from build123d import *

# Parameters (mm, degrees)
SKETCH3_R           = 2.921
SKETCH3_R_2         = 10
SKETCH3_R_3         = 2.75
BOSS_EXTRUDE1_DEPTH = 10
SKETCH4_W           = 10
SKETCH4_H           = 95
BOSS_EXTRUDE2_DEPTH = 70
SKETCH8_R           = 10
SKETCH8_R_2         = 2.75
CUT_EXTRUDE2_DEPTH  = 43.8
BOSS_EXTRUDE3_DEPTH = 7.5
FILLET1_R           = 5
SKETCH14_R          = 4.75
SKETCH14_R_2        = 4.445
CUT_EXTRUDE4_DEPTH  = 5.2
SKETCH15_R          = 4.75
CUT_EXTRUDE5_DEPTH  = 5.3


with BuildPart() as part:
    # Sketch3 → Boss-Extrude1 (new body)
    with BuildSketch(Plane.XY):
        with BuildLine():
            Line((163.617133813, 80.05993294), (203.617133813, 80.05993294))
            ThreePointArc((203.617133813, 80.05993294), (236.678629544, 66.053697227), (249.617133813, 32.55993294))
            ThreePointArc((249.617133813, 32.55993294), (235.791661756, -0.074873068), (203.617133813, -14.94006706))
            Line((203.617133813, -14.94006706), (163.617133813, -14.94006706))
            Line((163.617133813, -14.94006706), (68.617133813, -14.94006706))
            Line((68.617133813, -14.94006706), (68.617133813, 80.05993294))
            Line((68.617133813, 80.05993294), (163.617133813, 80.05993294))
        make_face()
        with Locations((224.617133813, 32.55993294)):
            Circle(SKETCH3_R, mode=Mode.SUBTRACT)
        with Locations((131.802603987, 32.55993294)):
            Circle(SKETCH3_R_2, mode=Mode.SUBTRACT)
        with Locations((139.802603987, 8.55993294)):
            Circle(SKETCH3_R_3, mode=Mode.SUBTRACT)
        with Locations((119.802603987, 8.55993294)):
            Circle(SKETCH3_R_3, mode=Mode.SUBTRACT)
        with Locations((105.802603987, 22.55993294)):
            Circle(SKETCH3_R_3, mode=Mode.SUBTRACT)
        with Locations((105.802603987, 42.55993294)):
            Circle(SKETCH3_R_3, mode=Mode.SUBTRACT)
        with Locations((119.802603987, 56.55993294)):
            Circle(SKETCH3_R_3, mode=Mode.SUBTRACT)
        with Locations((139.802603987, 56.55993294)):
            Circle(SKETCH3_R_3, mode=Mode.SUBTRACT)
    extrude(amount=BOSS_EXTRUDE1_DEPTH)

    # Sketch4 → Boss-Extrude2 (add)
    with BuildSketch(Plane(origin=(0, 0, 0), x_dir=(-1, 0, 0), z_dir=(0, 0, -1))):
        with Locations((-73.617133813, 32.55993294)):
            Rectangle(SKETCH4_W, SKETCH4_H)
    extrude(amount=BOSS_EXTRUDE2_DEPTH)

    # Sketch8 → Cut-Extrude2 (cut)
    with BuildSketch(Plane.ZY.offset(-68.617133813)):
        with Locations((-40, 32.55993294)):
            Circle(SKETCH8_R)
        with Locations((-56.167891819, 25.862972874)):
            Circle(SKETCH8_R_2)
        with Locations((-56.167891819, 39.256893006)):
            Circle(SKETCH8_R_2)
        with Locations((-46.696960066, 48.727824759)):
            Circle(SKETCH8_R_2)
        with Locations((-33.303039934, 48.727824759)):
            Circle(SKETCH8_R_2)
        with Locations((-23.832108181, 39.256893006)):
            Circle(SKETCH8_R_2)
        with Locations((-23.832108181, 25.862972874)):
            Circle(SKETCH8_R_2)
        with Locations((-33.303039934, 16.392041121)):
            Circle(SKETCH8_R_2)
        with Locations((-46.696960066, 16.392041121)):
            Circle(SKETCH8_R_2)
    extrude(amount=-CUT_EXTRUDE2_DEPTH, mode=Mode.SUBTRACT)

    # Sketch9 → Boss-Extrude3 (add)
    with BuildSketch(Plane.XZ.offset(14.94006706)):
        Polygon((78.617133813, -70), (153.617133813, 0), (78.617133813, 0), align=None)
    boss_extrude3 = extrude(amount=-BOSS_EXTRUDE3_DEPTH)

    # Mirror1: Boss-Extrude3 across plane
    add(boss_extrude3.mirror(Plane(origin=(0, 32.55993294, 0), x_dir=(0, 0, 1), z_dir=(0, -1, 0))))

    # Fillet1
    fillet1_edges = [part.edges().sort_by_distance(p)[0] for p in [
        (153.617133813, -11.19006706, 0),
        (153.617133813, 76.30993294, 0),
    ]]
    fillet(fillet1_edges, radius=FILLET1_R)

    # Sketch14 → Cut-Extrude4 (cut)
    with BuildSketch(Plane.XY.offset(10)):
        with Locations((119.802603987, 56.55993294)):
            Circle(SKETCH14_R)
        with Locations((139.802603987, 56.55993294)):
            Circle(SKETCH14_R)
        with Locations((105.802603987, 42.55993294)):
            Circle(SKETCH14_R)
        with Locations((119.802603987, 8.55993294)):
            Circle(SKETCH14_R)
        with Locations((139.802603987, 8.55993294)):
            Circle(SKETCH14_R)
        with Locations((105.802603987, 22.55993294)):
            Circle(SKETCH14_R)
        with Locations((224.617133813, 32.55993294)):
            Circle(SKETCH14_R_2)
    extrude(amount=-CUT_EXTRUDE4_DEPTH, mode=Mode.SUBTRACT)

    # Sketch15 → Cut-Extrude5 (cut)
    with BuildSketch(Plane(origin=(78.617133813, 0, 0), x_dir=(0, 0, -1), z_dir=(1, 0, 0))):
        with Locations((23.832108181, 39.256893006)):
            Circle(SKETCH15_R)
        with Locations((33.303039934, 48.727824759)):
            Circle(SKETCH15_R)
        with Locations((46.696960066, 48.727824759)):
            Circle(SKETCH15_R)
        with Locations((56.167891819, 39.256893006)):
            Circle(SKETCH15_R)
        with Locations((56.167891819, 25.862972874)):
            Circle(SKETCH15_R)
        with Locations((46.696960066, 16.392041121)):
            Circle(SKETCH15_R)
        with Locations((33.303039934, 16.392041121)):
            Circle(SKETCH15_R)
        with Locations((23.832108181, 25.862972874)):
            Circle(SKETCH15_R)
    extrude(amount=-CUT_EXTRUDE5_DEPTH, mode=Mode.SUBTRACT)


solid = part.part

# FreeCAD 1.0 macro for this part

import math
import FreeCAD as App
import Part
import Sketcher

V = App.Vector
Q = App.Units.Quantity


def edges_at(feature, points):
    """Names of the edges that pass closest to the given points."""
    edges = feature.Shape.Edges
    near = lambda p: min(range(len(edges)), key=lambda i: edges[i].distToShape(Part.Vertex(*p))[0])
    return sorted({f"Edge{near(p) + 1}" for p in points})

doc = App.newDocument("Part")
body = doc.addObject("PartDesign::Body", "Body")

sketch1 = doc.addObject("Sketcher::SketchObject", "Sketch")
body.addObject(sketch1)
sketch1.AttachmentSupport = (doc.XY_Plane, [""])
sketch1.MapMode = "FlatFace"
sketch1.addGeometry([
    Part.ArcOfCircle(Part.Circle(V(203.617134, 34.036249, 0), V(0, 0, 1), 46.023684), math.radians(-1.83821), math.radians(90)),
    Part.LineSegment(V(203.617134, 80.059933, 0), V(68.617134, 80.059933, 0)),
    Part.LineSegment(V(68.617134, 80.059933, 0), V(68.617134, -14.940067, 0)),
    Part.LineSegment(V(68.617134, -14.940067, 0), V(203.617134, -14.940067, 0)),
    Part.ArcOfCircle(Part.Circle(V(200.463715, 34.137454, 0), V(0, 0, 1), 49.178726), math.radians(-86.323581), math.radians(-1.83821)),
    Part.Circle(V(139.802604, 8.559933, 0), V(0, 0, 1), 2.75),
    Part.Circle(V(119.802604, 8.559933, 0), V(0, 0, 1), 2.75),
    Part.Circle(V(105.802604, 22.559933, 0), V(0, 0, 1), 2.75),
    Part.Circle(V(224.617134, 32.559933, 0), V(0, 0, 1), 2.921),
    Part.Circle(V(131.802604, 32.559933, 0), V(0, 0, 1), 10),
    Part.Circle(V(105.802604, 42.559933, 0), V(0, 0, 1), 2.75),
    Part.Circle(V(139.802604, 56.559933, 0), V(0, 0, 1), 2.75),
    Part.Circle(V(119.802604, 56.559933, 0), V(0, 0, 1), 2.75),
], False)
sketch1.addConstraint([
    Sketcher.Constraint("Tangent", 0, 2, 1, 1),
    Sketcher.Constraint("Coincident", 1, 2, 2, 1),
    Sketcher.Constraint("Coincident", 2, 2, 3, 1),
    Sketcher.Constraint("Coincident", 3, 2, 4, 1),
    Sketcher.Constraint("Tangent", 4, 2, 0, 1),
    Sketcher.Constraint("Horizontal", 1),
    Sketcher.Constraint("Vertical", 2),
    Sketcher.Constraint("Horizontal", 3),
    Sketcher.Constraint("Equal", 5, 6),
    Sketcher.Constraint("Equal", 6, 7),
    Sketcher.Constraint("Equal", 7, 10),
    Sketcher.Constraint("Equal", 10, 11),
    Sketcher.Constraint("Equal", 11, 12),
    Sketcher.Constraint("Horizontal", 5, 3, 6, 3),
    Sketcher.Constraint("Horizontal", 8, 3, 9, 3),
    Sketcher.Constraint("Horizontal", 11, 3, 12, 3),
    Sketcher.Constraint("Horizontal", 9, 3, 4, 2),
    Sketcher.Constraint("Vertical", 7, 3, 10, 3),
    Sketcher.Constraint("Vertical", 5, 3, 11, 3),
    Sketcher.Constraint("Vertical", 6, 3, 12, 3),
    Sketcher.Constraint("Vertical", 0, 2, 3, 2),
    Sketcher.Constraint("Diameter", 9, Q("20 mm")),
    Sketcher.Constraint("Diameter", 5, Q("5.5 mm")),
    Sketcher.Constraint("DistanceX", 1, 2, 1, 1, Q("135 mm")),
    Sketcher.Constraint("DistanceY", 2, 2, 2, 1, Q("95 mm")),
    Sketcher.Constraint("Diameter", 8, Q("5.842 mm")),
    Sketcher.Constraint("DistanceX", 6, 3, 5, 3, Q("20 mm")),
    Sketcher.Constraint("DistanceX", 7, 3, 6, 3, Q("14 mm")),
    Sketcher.Constraint("DistanceY", 6, 3, 7, 3, Q("14 mm")),
    Sketcher.Constraint("DistanceX", 0, 3, 8, 3, Q("21 mm")),
    Sketcher.Constraint("DistanceY", 5, 3, 8, 3, Q("24 mm")),
    Sketcher.Constraint("DistanceX", 9, 3, 5, 3, Q("8 mm")),
    Sketcher.Constraint("DistanceY", 7, 3, 10, 3, Q("20 mm")),
    Sketcher.Constraint("DistanceY", 9, 3, 11, 3, Q("24 mm")),
    Sketcher.Constraint("DistanceX", 8, 3, 4, 2, Q("25 mm")),
    Sketcher.Constraint("DistanceY", 8, 3, 0, 2, Q("47.5 mm")),
    Sketcher.Constraint("DistanceY", -1, 1, 0, 3, Q("34.036249 mm")),
    Sketcher.Constraint("DistanceX", 5, 3, 4, 3, Q("60.661111 mm")),
    Sketcher.Constraint("DistanceX", -1, 1, 0, 3, Q("203.617134 mm")),
])
pad1 = doc.addObject("PartDesign::Pad", "Pad")
body.addObject(pad1)
pad1.Profile = sketch1
pad1.Length = 10

sketch2 = doc.addObject("Sketcher::SketchObject", "Sketch001")
body.addObject(sketch2)
sketch2.AttachmentSupport = (doc.XY_Plane, [""])
sketch2.MapMode = "FlatFace"
sketch2.addGeometry([
    Part.LineSegment(V(78.617134, 80.059933, 0), V(78.617134, -14.940067, 0)),
    Part.LineSegment(V(78.617134, -14.940067, 0), V(68.617134, -14.940067, 0)),
    Part.LineSegment(V(68.617134, -14.940067, 0), V(68.617134, 80.059933, 0)),
    Part.LineSegment(V(68.617134, 80.059933, 0), V(78.617134, 80.059933, 0)),
], False)
sketch2.addConstraint([
    Sketcher.Constraint("Coincident", 0, 2, 1, 1),
    Sketcher.Constraint("Coincident", 1, 2, 2, 1),
    Sketcher.Constraint("Coincident", 2, 2, 3, 1),
    Sketcher.Constraint("Coincident", 3, 2, 0, 1),
    Sketcher.Constraint("Vertical", 0),
    Sketcher.Constraint("Horizontal", 1),
    Sketcher.Constraint("Vertical", 2),
    Sketcher.Constraint("Horizontal", 3),
    Sketcher.Constraint("DistanceX", 1, 2, 1, 1, Q("10 mm")),
    Sketcher.Constraint("DistanceY", 0, 2, 0, 1, Q("95 mm")),
    Sketcher.Constraint("DistanceX", -1, 1, 0, 2, Q("78.617134 mm")),
    Sketcher.Constraint("DistanceY", 0, 2, -1, 1, Q("14.940067 mm")),
])
pad2 = doc.addObject("PartDesign::Pad", "Pad001")
body.addObject(pad2)
pad2.Profile = sketch2
pad2.Length = 70
pad2.Reversed = True

sketch3 = doc.addObject("Sketcher::SketchObject", "Sketch002")
body.addObject(sketch3)
sketch3.AttachmentSupport = (doc.YZ_Plane, [""])
sketch3.MapMode = "FlatFace"
sketch3.AttachmentOffset = App.Placement(V(0, 0, 68.617134), App.Rotation())
sketch3.addGeometry([
    Part.Circle(V(32.559933, -40, 0), V(0, 0, 1), 10),
    Part.Circle(V(25.862973, -56.167892, 0), V(0, 0, 1), 2.75),
    Part.Circle(V(39.256893, -56.167892, 0), V(0, 0, 1), 2.75),
    Part.Circle(V(48.727825, -46.69696, 0), V(0, 0, 1), 2.75),
    Part.Circle(V(48.727825, -33.30304, 0), V(0, 0, 1), 2.75),
    Part.Circle(V(39.256893, -23.832108, 0), V(0, 0, 1), 2.75),
    Part.Circle(V(25.862973, -23.832108, 0), V(0, 0, 1), 2.75),
    Part.Circle(V(16.392041, -33.30304, 0), V(0, 0, 1), 2.75),
    Part.Circle(V(16.392041, -46.69696, 0), V(0, 0, 1), 2.75),
], False)
sketch3.addConstraint([
    Sketcher.Constraint("Equal", 1, 2),
    Sketcher.Constraint("Equal", 2, 3),
    Sketcher.Constraint("Equal", 3, 4),
    Sketcher.Constraint("Equal", 4, 5),
    Sketcher.Constraint("Equal", 5, 6),
    Sketcher.Constraint("Equal", 6, 7),
    Sketcher.Constraint("Equal", 7, 8),
    Sketcher.Constraint("Horizontal", 1, 3, 2, 3),
    Sketcher.Constraint("Horizontal", 5, 3, 6, 3),
    Sketcher.Constraint("Horizontal", 4, 3, 7, 3),
    Sketcher.Constraint("Horizontal", 3, 3, 8, 3),
    Sketcher.Constraint("Vertical", 3, 3, 4, 3),
    Sketcher.Constraint("Vertical", 2, 3, 5, 3),
    Sketcher.Constraint("Vertical", 1, 3, 6, 3),
    Sketcher.Constraint("Vertical", 7, 3, 8, 3),
    Sketcher.Constraint("Diameter", 0, Q("20 mm")),
    Sketcher.Constraint("Diameter", 1, Q("5.5 mm")),
    Sketcher.Constraint("DistanceY", 0, 3, -1, 1, Q("40 mm")),
    Sketcher.Constraint("DistanceY", 1, 3, -1, 1, Q("56.167892 mm")),
    Sketcher.Constraint("DistanceY", 3, 3, -1, 1, Q("46.69696 mm")),
    Sketcher.Constraint("DistanceY", 4, 3, -1, 1, Q("33.30304 mm")),
    Sketcher.Constraint("DistanceY", 5, 3, -1, 1, Q("23.832108 mm")),
    Sketcher.Constraint("DistanceX", -1, 1, 7, 3, Q("16.392041 mm")),
    Sketcher.Constraint("DistanceX", 1, 3, 0, 3, Q("6.69696 mm")),
    Sketcher.Constraint("DistanceX", 1, 3, 2, 3, Q("13.39392 mm")),
    Sketcher.Constraint("DistanceX", 2, 3, 3, 3, Q("9.470932 mm")),
    Sketcher.Constraint("DistanceX", 7, 3, 6, 3, Q("9.470932 mm")),
])
pocket1 = doc.addObject("PartDesign::Pocket", "Pocket")
body.addObject(pocket1)
pocket1.Profile = sketch3
pocket1.Length = 43.8
pocket1.Reversed = True

sketch4 = doc.addObject("Sketcher::SketchObject", "Sketch003")
body.addObject(sketch4)
sketch4.AttachmentSupport = (doc.XZ_Plane, [""])
sketch4.MapMode = "FlatFace"
sketch4.AttachmentOffset = App.Placement(V(0, 0, 14.940067), App.Rotation())
sketch4.addGeometry([
    Part.LineSegment(V(78.617134, -70, 0), V(153.617134, 0, 0)),
    Part.LineSegment(V(153.617134, 0, 0), V(78.617134, 0, 0)),
    Part.LineSegment(V(78.617134, 0, 0), V(78.617134, -70, 0)),
], False)
sketch4.addConstraint([
    Sketcher.Constraint("Coincident", 0, 2, 1, 1),
    Sketcher.Constraint("Coincident", 1, 2, 2, 1),
    Sketcher.Constraint("Coincident", 2, 2, 0, 1),
    Sketcher.Constraint("Horizontal", 1),
    Sketcher.Constraint("Vertical", 2),
    Sketcher.Constraint("PointOnObject", 0, 2, -1),
    Sketcher.Constraint("DistanceX", 1, 2, 1, 1, Q("75 mm")),
    Sketcher.Constraint("DistanceY", 2, 2, 2, 1, Q("70 mm")),
    Sketcher.Constraint("DistanceX", -1, 1, 0, 2, Q("153.617134 mm")),
])
pad3 = doc.addObject("PartDesign::Pad", "Pad002")
body.addObject(pad3)
pad3.Profile = sketch4
pad3.Length = 7.5
pad3.Reversed = True
doc.recompute()

datumplane = doc.addObject("PartDesign::Plane", "DatumPlane")
body.addObject(datumplane)
datumplane.AttachmentSupport = (doc.XZ_Plane, [""])
datumplane.MapMode = "FlatFace"
datumplane.AttachmentOffset = App.Placement(V(0, 0, -32.559933), App.Rotation())
mirrored = doc.addObject("PartDesign::Mirrored", "Mirrored")
body.addObject(mirrored)
mirrored.Originals = [pad3]
mirrored.MirrorPlane = (datumplane, [""])
body.Tip = mirrored
doc.recompute()

fillet = doc.addObject("PartDesign::Fillet", "Fillet")
body.addObject(fillet)
fillet.Base = (mirrored, edges_at(mirrored, [(153.617, -11.19, 0), (153.617, 76.31, 0)]))
fillet.Radius = 5

sketch5 = doc.addObject("Sketcher::SketchObject", "Sketch004")
body.addObject(sketch5)
sketch5.AttachmentSupport = (doc.XY_Plane, [""])
sketch5.MapMode = "FlatFace"
sketch5.AttachmentOffset = App.Placement(V(0, 0, 10), App.Rotation())
sketch5.addGeometry([
    Part.Circle(V(119.802604, 56.559933, 0), V(0, 0, 1), 4.75),
    Part.Circle(V(139.802604, 56.559933, 0), V(0, 0, 1), 4.75),
    Part.Circle(V(105.802604, 42.559933, 0), V(0, 0, 1), 4.75),
    Part.Circle(V(119.802604, 8.559933, 0), V(0, 0, 1), 4.75),
    Part.Circle(V(139.802604, 8.559933, 0), V(0, 0, 1), 4.75),
    Part.Circle(V(105.802604, 22.559933, 0), V(0, 0, 1), 4.75),
    Part.Circle(V(224.617134, 32.559933, 0), V(0, 0, 1), 4.445),
], False)
sketch5.addConstraint([
    Sketcher.Constraint("Equal", 0, 1),
    Sketcher.Constraint("Equal", 1, 2),
    Sketcher.Constraint("Equal", 2, 3),
    Sketcher.Constraint("Equal", 3, 4),
    Sketcher.Constraint("Equal", 4, 5),
    Sketcher.Constraint("Horizontal", 0, 3, 1, 3),
    Sketcher.Constraint("Horizontal", 3, 3, 4, 3),
    Sketcher.Constraint("Vertical", 0, 3, 3, 3),
    Sketcher.Constraint("Vertical", 1, 3, 4, 3),
    Sketcher.Constraint("Vertical", 2, 3, 5, 3),
    Sketcher.Constraint("Diameter", 0, Q("9.5 mm")),
    Sketcher.Constraint("Diameter", 6, Q("8.89 mm")),
    Sketcher.Constraint("DistanceX", 0, 3, 1, 3, Q("20 mm")),
    Sketcher.Constraint("DistanceX", 2, 3, 0, 3, Q("14 mm")),
    Sketcher.Constraint("DistanceY", 2, 3, 0, 3, Q("14 mm")),
    Sketcher.Constraint("DistanceY", 3, 3, 2, 3, Q("34 mm")),
    Sketcher.Constraint("DistanceY", 3, 3, 5, 3, Q("14 mm")),
    Sketcher.Constraint("DistanceY", 6, 3, 1, 3, Q("24 mm")),
    Sketcher.Constraint("DistanceX", 1, 3, 6, 3, Q("84.81453 mm")),
    Sketcher.Constraint("DistanceX", -1, 1, 0, 3, Q("119.802604 mm")),
    Sketcher.Constraint("DistanceY", -1, 1, 0, 3, Q("56.559933 mm")),
])
pocket2 = doc.addObject("PartDesign::Pocket", "Pocket001")
body.addObject(pocket2)
pocket2.Profile = sketch5
pocket2.Length = 5.2

sketch6 = doc.addObject("Sketcher::SketchObject", "Sketch005")
body.addObject(sketch6)
sketch6.AttachmentSupport = (doc.YZ_Plane, [""])
sketch6.MapMode = "FlatFace"
sketch6.AttachmentOffset = App.Placement(V(0, 0, 78.617134), App.Rotation())
sketch6.addGeometry([
    Part.Circle(V(39.256893, -23.832108, 0), V(0, 0, 1), 4.75),
    Part.Circle(V(48.727825, -33.30304, 0), V(0, 0, 1), 4.75),
    Part.Circle(V(48.727825, -46.69696, 0), V(0, 0, 1), 4.75),
    Part.Circle(V(39.256893, -56.167892, 0), V(0, 0, 1), 4.75),
    Part.Circle(V(25.862973, -56.167892, 0), V(0, 0, 1), 4.75),
    Part.Circle(V(16.392041, -46.69696, 0), V(0, 0, 1), 4.75),
    Part.Circle(V(16.392041, -33.30304, 0), V(0, 0, 1), 4.75),
    Part.Circle(V(25.862973, -23.832108, 0), V(0, 0, 1), 4.75),
], False)
sketch6.addConstraint([
    Sketcher.Constraint("Equal", 0, 1),
    Sketcher.Constraint("Equal", 1, 2),
    Sketcher.Constraint("Equal", 2, 3),
    Sketcher.Constraint("Equal", 3, 4),
    Sketcher.Constraint("Equal", 4, 5),
    Sketcher.Constraint("Equal", 5, 6),
    Sketcher.Constraint("Equal", 6, 7),
    Sketcher.Constraint("Horizontal", 3, 3, 4, 3),
    Sketcher.Constraint("Horizontal", 2, 3, 5, 3),
    Sketcher.Constraint("Horizontal", 1, 3, 6, 3),
    Sketcher.Constraint("Horizontal", 0, 3, 7, 3),
    Sketcher.Constraint("Vertical", 1, 3, 2, 3),
    Sketcher.Constraint("Vertical", 0, 3, 3, 3),
    Sketcher.Constraint("Vertical", 5, 3, 6, 3),
    Sketcher.Constraint("Vertical", 4, 3, 7, 3),
    Sketcher.Constraint("Diameter", 0, Q("9.5 mm")),
    Sketcher.Constraint("DistanceY", 0, 3, -1, 1, Q("23.832108 mm")),
    Sketcher.Constraint("DistanceY", 1, 3, -1, 1, Q("33.30304 mm")),
    Sketcher.Constraint("DistanceY", 2, 3, -1, 1, Q("46.69696 mm")),
    Sketcher.Constraint("DistanceY", 3, 3, -1, 1, Q("56.167892 mm")),
    Sketcher.Constraint("DistanceX", -1, 1, 5, 3, Q("16.392041 mm")),
    Sketcher.Constraint("DistanceX", 0, 3, 1, 3, Q("9.470932 mm")),
    Sketcher.Constraint("DistanceX", 4, 3, 3, 3, Q("13.39392 mm")),
    Sketcher.Constraint("DistanceX", 5, 3, 4, 3, Q("9.470932 mm")),
])
pocket3 = doc.addObject("PartDesign::Pocket", "Pocket002")
body.addObject(pocket3)
pocket3.Profile = sketch6
pocket3.Length = 5.3

doc.recompute()
